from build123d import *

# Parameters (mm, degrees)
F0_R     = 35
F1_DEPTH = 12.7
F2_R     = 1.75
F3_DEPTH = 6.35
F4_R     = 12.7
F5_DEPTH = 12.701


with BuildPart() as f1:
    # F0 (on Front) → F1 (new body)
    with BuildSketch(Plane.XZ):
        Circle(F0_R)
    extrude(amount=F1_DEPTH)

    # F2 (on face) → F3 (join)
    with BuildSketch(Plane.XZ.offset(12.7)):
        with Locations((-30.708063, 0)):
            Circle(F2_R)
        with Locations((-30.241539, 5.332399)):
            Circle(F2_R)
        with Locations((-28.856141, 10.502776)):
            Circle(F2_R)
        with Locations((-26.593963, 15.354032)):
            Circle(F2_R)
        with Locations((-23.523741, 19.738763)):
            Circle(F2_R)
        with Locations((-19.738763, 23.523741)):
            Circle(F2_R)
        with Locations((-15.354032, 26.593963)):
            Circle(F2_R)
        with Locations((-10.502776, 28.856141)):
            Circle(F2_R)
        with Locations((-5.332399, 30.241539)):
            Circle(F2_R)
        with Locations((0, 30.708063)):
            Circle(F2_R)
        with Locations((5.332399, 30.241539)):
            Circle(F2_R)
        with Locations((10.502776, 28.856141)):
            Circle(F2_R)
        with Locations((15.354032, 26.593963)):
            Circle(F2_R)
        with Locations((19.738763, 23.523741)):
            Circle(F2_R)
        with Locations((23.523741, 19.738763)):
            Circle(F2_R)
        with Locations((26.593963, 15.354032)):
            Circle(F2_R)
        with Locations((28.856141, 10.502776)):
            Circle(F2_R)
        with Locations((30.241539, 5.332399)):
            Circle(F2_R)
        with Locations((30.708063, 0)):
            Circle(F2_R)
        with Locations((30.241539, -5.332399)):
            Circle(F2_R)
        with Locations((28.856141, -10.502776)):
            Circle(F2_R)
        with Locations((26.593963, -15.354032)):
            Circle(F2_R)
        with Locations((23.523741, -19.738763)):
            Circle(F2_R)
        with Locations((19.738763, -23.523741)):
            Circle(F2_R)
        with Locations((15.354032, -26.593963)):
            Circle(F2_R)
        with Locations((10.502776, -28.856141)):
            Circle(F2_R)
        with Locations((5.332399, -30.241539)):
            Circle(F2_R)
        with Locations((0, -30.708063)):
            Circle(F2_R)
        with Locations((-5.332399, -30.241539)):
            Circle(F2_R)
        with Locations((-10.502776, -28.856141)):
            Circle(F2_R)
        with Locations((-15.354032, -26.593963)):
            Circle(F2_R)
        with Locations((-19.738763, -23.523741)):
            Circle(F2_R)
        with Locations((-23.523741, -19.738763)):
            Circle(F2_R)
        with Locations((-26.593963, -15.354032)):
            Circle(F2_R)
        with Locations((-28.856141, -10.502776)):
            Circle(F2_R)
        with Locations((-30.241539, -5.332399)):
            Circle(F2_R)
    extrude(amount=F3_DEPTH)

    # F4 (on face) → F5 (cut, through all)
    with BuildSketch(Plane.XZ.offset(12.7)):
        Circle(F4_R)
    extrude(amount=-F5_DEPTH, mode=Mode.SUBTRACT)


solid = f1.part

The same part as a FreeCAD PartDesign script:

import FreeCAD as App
import Part
import Sketcher
from FreeCAD import Vector
Q = App.Units.Quantity

doc = App.newDocument("Part")
body = doc.addObject("PartDesign::Body", "Body")

# Sketch on XZ plane
sketch1 = body.newObject("Sketcher::SketchObject", "Sketch")
sketch1.AttachmentSupport = (doc.getObject("XZ_Plane"), [""])
sketch1.MapMode = "FlatFace"
sketch1.addGeometry(Part.Circle(Vector(0, 0, 0), Vector(0, 0, 1), 35), False)
sketch1.addConstraint([
    Sketcher.Constraint("Coincident", 0, 3, -1, 1),
    Sketcher.Constraint("Diameter", 0, Q("70 mm")),
])
pad1 = body.newObject("PartDesign::Pad", "Pad")
pad1.Profile = sketch1
pad1.Length = Q("0.5 in")

# Sketch on XZ plane
sketch2 = body.newObject("Sketcher::SketchObject", "Sketch001")
sketch2.AttachmentSupport = (doc.getObject("XZ_Plane"), [""])
sketch2.MapMode = "FlatFace"
sketch2.AttachmentOffset = App.Placement(Vector(0, 0, 0.5 * 25.4), App.Rotation())
sketch2.addGeometry([
    Part.Circle(Vector(-30.708063, 0, 0), Vector(0, 0, 1), 1.75),  # 0
    Part.Circle(Vector(-30.241539, 5.332399, 0), Vector(0, 0, 1), 1.75),  # 1
    Part.Circle(Vector(-28.856141, 10.502776, 0), Vector(0, 0, 1), 1.75),  # 2
    Part.Circle(Vector(-26.593963, 15.354032, 0), Vector(0, 0, 1), 1.75),  # 3
    Part.Circle(Vector(-23.523741, 19.738763, 0), Vector(0, 0, 1), 1.75),  # 4
    Part.Circle(Vector(-19.738763, 23.523741, 0), Vector(0, 0, 1), 1.75),  # 5
    Part.Circle(Vector(-15.354032, 26.593963, 0), Vector(0, 0, 1), 1.75),  # 6
    Part.Circle(Vector(-10.502776, 28.856141, 0), Vector(0, 0, 1), 1.75),  # 7
    Part.Circle(Vector(-5.332399, 30.241539, 0), Vector(0, 0, 1), 1.75),  # 8
    Part.Circle(Vector(0, 30.708063, 0), Vector(0, 0, 1), 1.75),  # 9
    Part.Circle(Vector(5.332399, 30.241539, 0), Vector(0, 0, 1), 1.75),  # 10
    Part.Circle(Vector(10.502776, 28.856141, 0), Vector(0, 0, 1), 1.75),  # 11
    Part.Circle(Vector(15.354032, 26.593963, 0), Vector(0, 0, 1), 1.75),  # 12
    Part.Circle(Vector(19.738763, 23.523741, 0), Vector(0, 0, 1), 1.75),  # 13
    Part.Circle(Vector(23.523741, 19.738763, 0), Vector(0, 0, 1), 1.75),  # 14
    Part.Circle(Vector(26.593963, 15.354032, 0), Vector(0, 0, 1), 1.75),  # 15
    Part.Circle(Vector(28.856141, 10.502776, 0), Vector(0, 0, 1), 1.75),  # 16
    Part.Circle(Vector(30.241539, 5.332399, 0), Vector(0, 0, 1), 1.75),  # 17
    Part.Circle(Vector(30.708063, 0, 0), Vector(0, 0, 1), 1.75),  # 18
    Part.Circle(Vector(30.241539, -5.332399, 0), Vector(0, 0, 1), 1.75),  # 19
    Part.Circle(Vector(28.856141, -10.502776, 0), Vector(0, 0, 1), 1.75),  # 20
    Part.Circle(Vector(26.593963, -15.354032, 0), Vector(0, 0, 1), 1.75),  # 21
    Part.Circle(Vector(23.523741, -19.738763, 0), Vector(0, 0, 1), 1.75),  # 22
    Part.Circle(Vector(19.738763, -23.523741, 0), Vector(0, 0, 1), 1.75),  # 23
    Part.Circle(Vector(15.354032, -26.593963, 0), Vector(0, 0, 1), 1.75),  # 24
    Part.Circle(Vector(10.502776, -28.856141, 0), Vector(0, 0, 1), 1.75),  # 25
    Part.Circle(Vector(5.332399, -30.241539, 0), Vector(0, 0, 1), 1.75),  # 26
    Part.Circle(Vector(0, -30.708063, 0), Vector(0, 0, 1), 1.75),  # 27
    Part.Circle(Vector(-5.332399, -30.241539, 0), Vector(0, 0, 1), 1.75),  # 28
    Part.Circle(Vector(-10.502776, -28.856141, 0), Vector(0, 0, 1), 1.75),  # 29
    Part.Circle(Vector(-15.354032, -26.593963, 0), Vector(0, 0, 1), 1.75),  # 30
    Part.Circle(Vector(-19.738763, -23.523741, 0), Vector(0, 0, 1), 1.75),  # 31
    Part.Circle(Vector(-23.523741, -19.738763, 0), Vector(0, 0, 1), 1.75),  # 32
    Part.Circle(Vector(-26.593963, -15.354032, 0), Vector(0, 0, 1), 1.75),  # 33
    Part.Circle(Vector(-28.856141, -10.502776, 0), Vector(0, 0, 1), 1.75),  # 34
    Part.Circle(Vector(-30.241539, -5.332399, 0), Vector(0, 0, 1), 1.75),  # 35
], False)
sketch2.addConstraint([
    Sketcher.Constraint("Equal", 0, 1),
    Sketcher.Constraint("Equal", 1, 2),
    Sketcher.Constraint("Equal", 2, 3),
    Sketcher.Constraint("Equal", 3, 4),
    Sketcher.Constraint("Equal", 4, 5),
    Sketcher.Constraint("Equal", 5, 6),
    Sketcher.Constraint("Equal", 6, 7),
    Sketcher.Constraint("Equal", 7, 8),
    Sketcher.Constraint("Equal", 8, 9),
    Sketcher.Constraint("Equal", 9, 10),
    Sketcher.Constraint("Equal", 10, 11),
    Sketcher.Constraint("Equal", 11, 12),
    Sketcher.Constraint("Equal", 12, 13),
    Sketcher.Constraint("Equal", 13, 14),
    Sketcher.Constraint("Equal", 14, 15),
    Sketcher.Constraint("Equal", 15, 16),
    Sketcher.Constraint("Equal", 16, 17),
    Sketcher.Constraint("Equal", 17, 18),
    Sketcher.Constraint("Equal", 18, 19),
    Sketcher.Constraint("Equal", 19, 20),
    Sketcher.Constraint("Equal", 20, 21),
    Sketcher.Constraint("Equal", 21, 22),
    Sketcher.Constraint("Equal", 22, 23),
    Sketcher.Constraint("Equal", 23, 24),
    Sketcher.Constraint("Equal", 24, 25),
    Sketcher.Constraint("Equal", 25, 26),
    Sketcher.Constraint("Equal", 26, 27),
    Sketcher.Constraint("Equal", 27, 28),
    Sketcher.Constraint("Equal", 28, 29),
    Sketcher.Constraint("Equal", 29, 30),
    Sketcher.Constraint("Equal", 30, 31),
    Sketcher.Constraint("Equal", 31, 32),
    Sketcher.Constraint("Equal", 32, 33),
    Sketcher.Constraint("Equal", 33, 34),
    Sketcher.Constraint("Equal", 34, 35),
    Sketcher.Constraint("Symmetric", 0, 3, 18, 3, -1, 1),
    Sketcher.Constraint("Symmetric", 1, 3, 19, 3, -1, 1),
    Sketcher.Constraint("Symmetric", 2, 3, 20, 3, -1, 1),
    Sketcher.Constraint("Symmetric", 3, 3, 21, 3, -1, 1),
    Sketcher.Constraint("Symmetric", 4, 3, 22, 3, -1, 1),
    Sketcher.Constraint("Symmetric", 5, 3, 23, 3, -1, 1),
    Sketcher.Constraint("Symmetric", 6, 3, 24, 3, -1, 1),
    Sketcher.Constraint("Symmetric", 7, 3, 25, 3, -1, 1),
    Sketcher.Constraint("Symmetric", 8, 3, 26, 3, -1, 1),
    Sketcher.Constraint("Symmetric", 9, 3, 27, 3, -1, 1),
    Sketcher.Constraint("Symmetric", 10, 3, 28, 3, -1, 1),
    Sketcher.Constraint("Symmetric", 11, 3, 29, 3, -1, 1),
    Sketcher.Constraint("Symmetric", 12, 3, 30, 3, -1, 1),
    Sketcher.Constraint("Symmetric", 13, 3, 31, 3, -1, 1),
    Sketcher.Constraint("Symmetric", 14, 3, 32, 3, -1, 1),
    Sketcher.Constraint("Symmetric", 15, 3, 33, 3, -1, 1),
    Sketcher.Constraint("Symmetric", 16, 3, 34, 3, -1, 1),
    Sketcher.Constraint("Symmetric", 17, 3, 35, 3, -1, 1),
    Sketcher.Constraint("Symmetric", 8, 3, 10, 3, -2),
    Sketcher.Constraint("Symmetric", 7, 3, 11, 3, -2),
    Sketcher.Constraint("Symmetric", 6, 3, 12, 3, -2),
    Sketcher.Constraint("Symmetric", 5, 3, 13, 3, -2),
    Sketcher.Constraint("Symmetric", 4, 3, 14, 3, -2),
    Sketcher.Constraint("Symmetric", 3, 3, 15, 3, -2),
    Sketcher.Constraint("Symmetric", 2, 3, 16, 3, -2),
    Sketcher.Constraint("Symmetric", 1, 3, 17, 3, -2),
    Sketcher.Constraint("PointOnObject", 0, 3, -1),
    Sketcher.Constraint("PointOnObject", 9, 3, -2),
    Sketcher.Constraint("Diameter", 0, Q("3.5 mm")),
    Sketcher.Constraint("DistanceY", -1, 1, 1, 3, Q("5.332399 mm")),
    Sketcher.Constraint("DistanceX", 8, 3, -1, 1, Q("5.332399 mm")),
    Sketcher.Constraint("DistanceX", 0, 3, 3, 3, Q("4.1141 mm")),
    Sketcher.Constraint("DistanceX", 2, 3, 4, 3, Q("5.3324 mm")),
    Sketcher.Constraint("DistanceX", 3, 3, 5, 3, Q("6.8552 mm")),
    Sketcher.Constraint("DistanceY", 4, 3, 6, 3, Q("6.8552 mm")),
    Sketcher.Constraint("DistanceY", 5, 3, 7, 3, Q("5.3324 mm")),
    Sketcher.Constraint("DistanceY", 6, 3, 9, 3, Q("4.1141 mm")),
    Sketcher.Constraint("DistanceX", 1, 3, -1, 1, Q("30.241539 mm")),
    Sketcher.Constraint("DistanceX", 2, 3, -1, 1, Q("28.856141 mm")),
    Sketcher.Constraint("DistanceY", -1, 1, 5, 3, Q("23.523741 mm")),
    Sketcher.Constraint("DistanceY", -1, 1, 8, 3, Q("30.241539 mm")),
    Sketcher.Constraint("DistanceX", 0, 3, 2, 3, Q("1.851922 mm")),
    Sketcher.Constraint("DistanceY", 3, 3, 4, 3, Q("4.384731 mm")),
    Sketcher.Constraint("DistanceY", 4, 3, 5, 3, Q("3.784978 mm")),
    Sketcher.Constraint("DistanceX", 5, 3, 6, 3, Q("4.384731 mm")),
    Sketcher.Constraint("DistanceX", 6, 3, 11, 3, Q("25.856808 mm")),
    Sketcher.Constraint("DistanceY", 20, 3, 15, 3, Q("25.856808 mm")),
])
pad2 = body.newObject("PartDesign::Pad", "Pad001")
pad2.Profile = sketch2
pad2.Length = Q("0.25 in")

# Sketch on XZ plane
sketch3 = body.newObject("Sketcher::SketchObject", "Sketch002")
sketch3.AttachmentSupport = (doc.getObject("XZ_Plane"), [""])
sketch3.MapMode = "FlatFace"
sketch3.AttachmentOffset = App.Placement(Vector(0, 0, 0.5 * 25.4), App.Rotation())
sketch3.addGeometry(Part.Circle(Vector(0, 0, 0), Vector(0, 0, 1), 12.7), False)
sketch3.addConstraint([
    Sketcher.Constraint("Coincident", 0, 3, -1, 1),
    Sketcher.Constraint("Diameter", 0, Q("1 in")),
])
pocket1 = body.newObject("PartDesign::Pocket", "Pocket")
pocket1.Profile = sketch3
pocket1.Type = "ThroughAll"

doc.recompute()
